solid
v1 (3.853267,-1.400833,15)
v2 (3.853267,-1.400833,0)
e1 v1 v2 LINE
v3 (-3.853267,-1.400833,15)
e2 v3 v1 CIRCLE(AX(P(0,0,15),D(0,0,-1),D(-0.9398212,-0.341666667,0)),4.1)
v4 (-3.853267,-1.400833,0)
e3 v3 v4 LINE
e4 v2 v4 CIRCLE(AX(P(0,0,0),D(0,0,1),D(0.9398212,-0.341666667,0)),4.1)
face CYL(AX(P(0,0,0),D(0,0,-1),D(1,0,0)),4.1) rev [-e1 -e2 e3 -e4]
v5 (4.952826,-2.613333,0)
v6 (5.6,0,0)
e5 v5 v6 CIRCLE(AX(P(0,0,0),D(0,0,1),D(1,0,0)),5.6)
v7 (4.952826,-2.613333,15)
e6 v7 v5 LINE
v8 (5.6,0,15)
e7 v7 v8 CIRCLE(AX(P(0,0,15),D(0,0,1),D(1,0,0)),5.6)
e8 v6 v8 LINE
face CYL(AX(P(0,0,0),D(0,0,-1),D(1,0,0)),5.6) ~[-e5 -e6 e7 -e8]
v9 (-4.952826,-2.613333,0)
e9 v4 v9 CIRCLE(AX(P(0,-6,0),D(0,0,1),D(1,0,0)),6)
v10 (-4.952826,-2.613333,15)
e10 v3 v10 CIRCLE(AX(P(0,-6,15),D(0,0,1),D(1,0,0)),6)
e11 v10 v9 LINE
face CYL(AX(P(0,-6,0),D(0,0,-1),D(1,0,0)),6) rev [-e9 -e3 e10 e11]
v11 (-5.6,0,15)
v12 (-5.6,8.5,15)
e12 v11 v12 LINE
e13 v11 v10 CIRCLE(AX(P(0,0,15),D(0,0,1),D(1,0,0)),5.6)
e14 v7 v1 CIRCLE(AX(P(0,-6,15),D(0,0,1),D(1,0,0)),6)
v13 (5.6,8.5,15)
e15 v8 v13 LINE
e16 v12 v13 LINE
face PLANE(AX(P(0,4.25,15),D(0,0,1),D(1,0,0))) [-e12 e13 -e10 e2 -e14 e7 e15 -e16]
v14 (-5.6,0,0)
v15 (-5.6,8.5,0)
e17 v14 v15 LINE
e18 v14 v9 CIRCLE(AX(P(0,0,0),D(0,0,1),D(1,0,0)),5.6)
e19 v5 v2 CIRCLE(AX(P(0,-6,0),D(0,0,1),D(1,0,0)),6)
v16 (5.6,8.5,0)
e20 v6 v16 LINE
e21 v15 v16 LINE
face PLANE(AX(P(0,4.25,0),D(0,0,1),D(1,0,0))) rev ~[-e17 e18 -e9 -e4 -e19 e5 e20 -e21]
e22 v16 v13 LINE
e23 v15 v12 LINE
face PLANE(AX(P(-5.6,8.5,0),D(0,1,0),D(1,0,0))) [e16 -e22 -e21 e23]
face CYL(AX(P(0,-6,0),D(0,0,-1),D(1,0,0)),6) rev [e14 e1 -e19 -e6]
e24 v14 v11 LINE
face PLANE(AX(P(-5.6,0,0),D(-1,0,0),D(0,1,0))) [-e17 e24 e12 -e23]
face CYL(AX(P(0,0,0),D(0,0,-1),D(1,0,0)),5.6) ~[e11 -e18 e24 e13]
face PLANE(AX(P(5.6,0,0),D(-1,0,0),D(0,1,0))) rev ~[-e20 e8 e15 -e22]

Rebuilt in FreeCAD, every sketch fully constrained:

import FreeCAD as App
import Part
import Sketcher
from FreeCAD import Vector

doc = App.newDocument("Part")
body = doc.addObject("PartDesign::Body", "Body")

# Sketch on XY plane
sketch1 = doc.addObject("Sketcher::SketchObject", "Sketch")
body.addObject(sketch1)
sketch1.AttachmentSupport = (doc.XY_Plane, [""])
sketch1.MapMode = "FlatFace"
sketch1.addGeometry(Part.Circle(Vector(0, -6, 0), Vector(0, 0, 1), 6), False)
sketch1.addConstraint([
    Sketcher.Constraint("PointOnObject", 0, 3, -2),
    Sketcher.Constraint("Diameter", 0, 12.0),
    Sketcher.Constraint("DistanceY", 0, 3, -1, 1, 6.0),
])
pad1 = doc.addObject("PartDesign::Pad", "Pad")
body.addObject(pad1)
pad1.Profile = sketch1
pad1.Length = 15
body2 = doc.addObject("PartDesign::Body", "Body001")

# Sketch on XY plane
sketch2 = doc.addObject("Sketcher::SketchObject", "Sketch001")
body2.addObject(sketch2)
sketch2.AttachmentSupport = (doc.getObject("XY_Plane001"), [""])
sketch2.MapMode = "FlatFace"
sketch2.addGeometry(Part.Circle(Vector(0, 0, 0), Vector(0, 0, 1), 4.1), False)
sketch2.addConstraint([
    Sketcher.Constraint("Coincident", 0, 3, -1, 1),
    Sketcher.Constraint("Diameter", 0, 8.2),
])
pad2 = doc.addObject("PartDesign::Pad", "Pad001")
body2.addObject(pad2)
pad2.Profile = sketch2
pad2.Length = 15
body3 = doc.addObject("PartDesign::Body", "Body002")

# Sketch on XY plane
sketch3 = doc.addObject("Sketcher::SketchObject", "Sketch002")
body3.addObject(sketch3)
sketch3.AttachmentSupport = (doc.getObject("XY_Plane002"), [""])
sketch3.MapMode = "FlatFace"
sketch3.addGeometry([
    Part.LineSegment(Vector(-5.6, 8.5, 0), Vector(-5.6, 0, 0)),
    Part.LineSegment(Vector(-5.6, 0, 0), Vector(5.6, 0, 0)),
    Part.LineSegment(Vector(5.6, 0, 0), Vector(5.6, 8.5, 0)),
    Part.LineSegment(Vector(5.6, 8.5, 0), Vector(-5.6, 8.5, 0)),
], False)
sketch3.addConstraint([
    Sketcher.Constraint("Coincident", 0, 2, 1, 1),
    Sketcher.Constraint("Coincident", 1, 2, 2, 1),
    Sketcher.Constraint("Coincident", 2, 2, 3, 1),
    Sketcher.Constraint("Coincident", 3, 2, 0, 1),
    Sketcher.Constraint("Vertical", 0),
    Sketcher.Constraint("Horizontal", 1),
    Sketcher.Constraint("Vertical", 2),
    Sketcher.Constraint("Horizontal", 3),
    Sketcher.Constraint("Symmetric", 0, 2, 1, 2, -1, 1),
    Sketcher.Constraint("DistanceX", 1, 1, 1, 2, 11.2),
    Sketcher.Constraint("DistanceY", 0, 2, 0, 1, 8.5),
])
pad3 = doc.addObject("PartDesign::Pad", "Pad002")
body3.addObject(pad3)
pad3.Profile = sketch3
pad3.Length = 15
body4 = doc.addObject("PartDesign::Body", "Body003")

# Sketch on XY plane
sketch4 = doc.addObject("Sketcher::SketchObject", "Sketch003")
body4.addObject(sketch4)
sketch4.AttachmentSupport = (doc.getObject("XY_Plane003"), [""])
sketch4.MapMode = "FlatFace"
sketch4.addGeometry(Part.Circle(Vector(0, 0, 0), Vector(0, 0, 1), 5.6), False)
sketch4.addConstraint([
    Sketcher.Constraint("Coincident", 0, 3, -1, 1),
    Sketcher.Constraint("Diameter", 0, 11.2),
])
pad4 = doc.addObject("PartDesign::Pad", "Pad003")
body4.addObject(pad4)
pad4.Profile = sketch4
pad4.Length = 15
doc.recompute()

boolean = doc.addObject("PartDesign::Boolean", "Boolean")
body4.addObject(boolean)
boolean.Type = "Fuse"
boolean.addObjects([body3])
doc.recompute()

boolean2 = doc.addObject("PartDesign::Boolean", "Boolean001")
body4.addObject(boolean2)
boolean2.Type = "Cut"
boolean2.addObjects([body2])
doc.recompute()

boolean3 = doc.addObject("PartDesign::Boolean", "Boolean002")
body4.addObject(boolean3)
boolean3.Type = "Cut"
boolean3.addObjects([body])

doc.recompute()
